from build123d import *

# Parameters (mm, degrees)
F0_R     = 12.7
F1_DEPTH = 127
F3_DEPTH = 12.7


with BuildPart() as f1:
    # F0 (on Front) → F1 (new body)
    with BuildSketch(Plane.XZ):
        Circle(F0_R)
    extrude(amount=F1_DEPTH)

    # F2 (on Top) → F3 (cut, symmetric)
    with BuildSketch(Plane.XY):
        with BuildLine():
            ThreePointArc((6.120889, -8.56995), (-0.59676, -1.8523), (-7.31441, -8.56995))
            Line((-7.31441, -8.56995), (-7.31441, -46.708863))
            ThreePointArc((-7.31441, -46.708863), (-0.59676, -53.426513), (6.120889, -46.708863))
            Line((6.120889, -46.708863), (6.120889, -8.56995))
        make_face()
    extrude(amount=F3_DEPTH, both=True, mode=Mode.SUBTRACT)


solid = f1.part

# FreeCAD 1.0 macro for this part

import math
import FreeCAD as App
import Part
import Sketcher
from FreeCAD import Vector
Q = App.Units.Quantity

doc = App.newDocument("Part")
body = doc.addObject("PartDesign::Body", "Body")

# Sketch on XZ plane
sketch1 = body.newObject("Sketcher::SketchObject", "Sketch")
sketch1.AttachmentSupport = (doc.getObject("XZ_Plane"), [""])
sketch1.MapMode = "FlatFace"
sketch1.addGeometry(Part.Circle(Vector(0, 0, 0), Vector(0, 0, 1), 12.7), False)
sketch1.addConstraint([
    Sketcher.Constraint("Coincident", 0, 3, -1, 1),
    Sketcher.Constraint("Diameter", 0, Q("1 in")),
])
pad1 = body.newObject("PartDesign::Pad", "Pad")
pad1.Profile = sketch1
pad1.Length = Q("5 in")

# Sketch on XY plane
sketch2 = body.newObject("Sketcher::SketchObject", "Sketch001")
sketch2.AttachmentSupport = (doc.getObject("XY_Plane"), [""])
sketch2.MapMode = "FlatFace"
sketch2.addGeometry([
    Part.ArcOfCircle(Part.Circle(Vector(-0.596761, -8.569949, 0), Vector(0, 0, 1), 6.71765), math.radians(-0.000004), math.radians(180.000004)),
    Part.LineSegment(Vector(-7.31441, -8.56995, 0), Vector(-7.31441, -46.708863, 0)),
    Part.ArcOfCircle(Part.Circle(Vector(-0.596761, -46.708863, 0), Vector(0, 0, 1), 6.71765), math.radians(179.999996), math.radians(360.000004)),
    Part.LineSegment(Vector(6.120889, -46.708863, 0), Vector(6.120889, -8.56995, 0)),
], False)
sketch2.addConstraint([
    Sketcher.Constraint("Tangent", 0, 2, 1, 1),
    Sketcher.Constraint("Tangent", 1, 2, 2, 1),
    Sketcher.Constraint("Tangent", 2, 2, 3, 1),
    Sketcher.Constraint("Tangent", 3, 2, 0, 1),
    Sketcher.Constraint("Vertical", 1),
    Sketcher.Constraint("Vertical", 3),
    Sketcher.Constraint("Radius", 0, 6.71765),
    Sketcher.Constraint("DistanceY", 1, 2, 1, 1, 38.138913),
    Sketcher.Constraint("DistanceX", 0, 3, -1, 1, 0.596761),
    Sketcher.Constraint("DistanceY", 0, 3, -1, 1, 8.569949),
])
pocket1 = body.newObject("PartDesign::Pocket", "Pocket")
pocket1.Profile = sketch2
pocket1.Length = Q("1 in")
pocket1.Midplane = True

doc.recompute()
